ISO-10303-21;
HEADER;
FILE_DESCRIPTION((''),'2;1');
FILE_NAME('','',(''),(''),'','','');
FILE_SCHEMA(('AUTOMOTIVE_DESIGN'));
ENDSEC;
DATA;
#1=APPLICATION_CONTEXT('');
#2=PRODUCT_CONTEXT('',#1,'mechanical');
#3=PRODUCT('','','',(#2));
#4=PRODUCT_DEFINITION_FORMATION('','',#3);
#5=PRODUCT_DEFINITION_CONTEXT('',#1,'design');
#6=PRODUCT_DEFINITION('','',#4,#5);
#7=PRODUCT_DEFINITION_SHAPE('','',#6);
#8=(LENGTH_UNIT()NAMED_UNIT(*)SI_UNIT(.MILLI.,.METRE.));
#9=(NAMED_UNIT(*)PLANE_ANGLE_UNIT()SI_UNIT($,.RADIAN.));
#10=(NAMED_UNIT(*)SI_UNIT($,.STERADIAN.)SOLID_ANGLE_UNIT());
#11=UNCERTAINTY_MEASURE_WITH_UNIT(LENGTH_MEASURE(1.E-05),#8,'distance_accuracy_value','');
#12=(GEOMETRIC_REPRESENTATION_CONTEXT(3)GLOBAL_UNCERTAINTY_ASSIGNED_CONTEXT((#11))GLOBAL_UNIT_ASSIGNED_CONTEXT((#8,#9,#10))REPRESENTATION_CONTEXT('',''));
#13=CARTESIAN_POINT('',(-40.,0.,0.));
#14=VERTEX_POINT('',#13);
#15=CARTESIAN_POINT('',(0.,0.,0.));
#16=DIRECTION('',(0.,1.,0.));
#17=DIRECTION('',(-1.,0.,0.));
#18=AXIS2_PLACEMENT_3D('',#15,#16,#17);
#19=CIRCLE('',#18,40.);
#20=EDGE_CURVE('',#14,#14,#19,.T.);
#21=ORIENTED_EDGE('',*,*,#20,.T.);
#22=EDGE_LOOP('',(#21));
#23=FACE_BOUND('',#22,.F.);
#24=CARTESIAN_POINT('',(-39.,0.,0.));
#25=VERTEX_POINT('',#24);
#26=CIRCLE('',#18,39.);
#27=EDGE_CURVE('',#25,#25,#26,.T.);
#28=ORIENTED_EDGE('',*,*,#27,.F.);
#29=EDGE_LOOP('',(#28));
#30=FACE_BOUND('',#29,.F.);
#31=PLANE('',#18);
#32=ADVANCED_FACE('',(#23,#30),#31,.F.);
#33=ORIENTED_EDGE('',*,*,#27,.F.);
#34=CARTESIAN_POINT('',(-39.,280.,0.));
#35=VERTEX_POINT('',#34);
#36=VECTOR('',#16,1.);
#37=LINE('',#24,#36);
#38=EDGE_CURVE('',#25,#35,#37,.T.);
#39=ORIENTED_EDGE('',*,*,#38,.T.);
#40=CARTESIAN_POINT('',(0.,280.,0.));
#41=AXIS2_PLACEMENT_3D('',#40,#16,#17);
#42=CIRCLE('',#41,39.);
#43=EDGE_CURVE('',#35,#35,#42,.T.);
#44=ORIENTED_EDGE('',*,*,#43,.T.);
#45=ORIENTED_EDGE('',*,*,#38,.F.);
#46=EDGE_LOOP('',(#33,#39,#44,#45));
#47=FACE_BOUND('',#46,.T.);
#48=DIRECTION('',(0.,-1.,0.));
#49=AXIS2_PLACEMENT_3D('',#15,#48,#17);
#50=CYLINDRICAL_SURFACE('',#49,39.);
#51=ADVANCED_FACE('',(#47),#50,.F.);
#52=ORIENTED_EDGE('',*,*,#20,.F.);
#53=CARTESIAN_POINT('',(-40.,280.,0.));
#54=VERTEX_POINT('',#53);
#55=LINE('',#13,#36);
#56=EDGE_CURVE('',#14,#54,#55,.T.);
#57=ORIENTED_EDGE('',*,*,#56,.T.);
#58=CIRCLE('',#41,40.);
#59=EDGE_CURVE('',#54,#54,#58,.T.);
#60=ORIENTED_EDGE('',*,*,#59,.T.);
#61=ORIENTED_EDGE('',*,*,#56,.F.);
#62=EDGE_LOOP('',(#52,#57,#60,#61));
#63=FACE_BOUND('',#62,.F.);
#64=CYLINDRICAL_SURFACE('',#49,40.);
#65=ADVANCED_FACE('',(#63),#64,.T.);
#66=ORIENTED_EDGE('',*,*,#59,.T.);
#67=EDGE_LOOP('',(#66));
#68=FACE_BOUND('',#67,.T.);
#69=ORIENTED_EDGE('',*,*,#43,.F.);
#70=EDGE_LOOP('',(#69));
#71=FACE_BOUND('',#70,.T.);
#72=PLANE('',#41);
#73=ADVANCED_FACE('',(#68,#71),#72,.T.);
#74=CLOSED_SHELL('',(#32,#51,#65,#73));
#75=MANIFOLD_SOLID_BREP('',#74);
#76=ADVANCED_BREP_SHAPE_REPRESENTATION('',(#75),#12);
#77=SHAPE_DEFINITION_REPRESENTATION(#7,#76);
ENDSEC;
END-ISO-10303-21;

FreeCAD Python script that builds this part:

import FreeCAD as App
import Part
import Sketcher

doc = App.newDocument("Part")
body = doc.addObject("PartDesign::Body", "Body")

sketch1 = body.newObject("Sketcher::SketchObject", "Sketch")
sketch1.AttachmentSupport = (doc.getObject("XZ_Plane"), [""])
sketch1.MapMode = "FlatFace"
sketch1.addGeometry([
    Part.Circle(App.Vector(0, 0, 0), App.Vector(0, 0, 1), 40),
    Part.Circle(App.Vector(0, 0, 0), App.Vector(0, 0, 1), 39),
], False)
sketch1.addConstraint([
    Sketcher.Constraint("Coincident", 0, 3, -1, 1),
    Sketcher.Constraint("Coincident", 1, 3, -1, 1),
    Sketcher.Constraint("Diameter", 0, 80.0),
    Sketcher.Constraint("Diameter", 1, 78.0),
])
pad1 = body.newObject("PartDesign::Pad", "Pad")
pad1.Profile = sketch1
pad1.Length = 280
pad1.Reversed = True

doc.recompute()
